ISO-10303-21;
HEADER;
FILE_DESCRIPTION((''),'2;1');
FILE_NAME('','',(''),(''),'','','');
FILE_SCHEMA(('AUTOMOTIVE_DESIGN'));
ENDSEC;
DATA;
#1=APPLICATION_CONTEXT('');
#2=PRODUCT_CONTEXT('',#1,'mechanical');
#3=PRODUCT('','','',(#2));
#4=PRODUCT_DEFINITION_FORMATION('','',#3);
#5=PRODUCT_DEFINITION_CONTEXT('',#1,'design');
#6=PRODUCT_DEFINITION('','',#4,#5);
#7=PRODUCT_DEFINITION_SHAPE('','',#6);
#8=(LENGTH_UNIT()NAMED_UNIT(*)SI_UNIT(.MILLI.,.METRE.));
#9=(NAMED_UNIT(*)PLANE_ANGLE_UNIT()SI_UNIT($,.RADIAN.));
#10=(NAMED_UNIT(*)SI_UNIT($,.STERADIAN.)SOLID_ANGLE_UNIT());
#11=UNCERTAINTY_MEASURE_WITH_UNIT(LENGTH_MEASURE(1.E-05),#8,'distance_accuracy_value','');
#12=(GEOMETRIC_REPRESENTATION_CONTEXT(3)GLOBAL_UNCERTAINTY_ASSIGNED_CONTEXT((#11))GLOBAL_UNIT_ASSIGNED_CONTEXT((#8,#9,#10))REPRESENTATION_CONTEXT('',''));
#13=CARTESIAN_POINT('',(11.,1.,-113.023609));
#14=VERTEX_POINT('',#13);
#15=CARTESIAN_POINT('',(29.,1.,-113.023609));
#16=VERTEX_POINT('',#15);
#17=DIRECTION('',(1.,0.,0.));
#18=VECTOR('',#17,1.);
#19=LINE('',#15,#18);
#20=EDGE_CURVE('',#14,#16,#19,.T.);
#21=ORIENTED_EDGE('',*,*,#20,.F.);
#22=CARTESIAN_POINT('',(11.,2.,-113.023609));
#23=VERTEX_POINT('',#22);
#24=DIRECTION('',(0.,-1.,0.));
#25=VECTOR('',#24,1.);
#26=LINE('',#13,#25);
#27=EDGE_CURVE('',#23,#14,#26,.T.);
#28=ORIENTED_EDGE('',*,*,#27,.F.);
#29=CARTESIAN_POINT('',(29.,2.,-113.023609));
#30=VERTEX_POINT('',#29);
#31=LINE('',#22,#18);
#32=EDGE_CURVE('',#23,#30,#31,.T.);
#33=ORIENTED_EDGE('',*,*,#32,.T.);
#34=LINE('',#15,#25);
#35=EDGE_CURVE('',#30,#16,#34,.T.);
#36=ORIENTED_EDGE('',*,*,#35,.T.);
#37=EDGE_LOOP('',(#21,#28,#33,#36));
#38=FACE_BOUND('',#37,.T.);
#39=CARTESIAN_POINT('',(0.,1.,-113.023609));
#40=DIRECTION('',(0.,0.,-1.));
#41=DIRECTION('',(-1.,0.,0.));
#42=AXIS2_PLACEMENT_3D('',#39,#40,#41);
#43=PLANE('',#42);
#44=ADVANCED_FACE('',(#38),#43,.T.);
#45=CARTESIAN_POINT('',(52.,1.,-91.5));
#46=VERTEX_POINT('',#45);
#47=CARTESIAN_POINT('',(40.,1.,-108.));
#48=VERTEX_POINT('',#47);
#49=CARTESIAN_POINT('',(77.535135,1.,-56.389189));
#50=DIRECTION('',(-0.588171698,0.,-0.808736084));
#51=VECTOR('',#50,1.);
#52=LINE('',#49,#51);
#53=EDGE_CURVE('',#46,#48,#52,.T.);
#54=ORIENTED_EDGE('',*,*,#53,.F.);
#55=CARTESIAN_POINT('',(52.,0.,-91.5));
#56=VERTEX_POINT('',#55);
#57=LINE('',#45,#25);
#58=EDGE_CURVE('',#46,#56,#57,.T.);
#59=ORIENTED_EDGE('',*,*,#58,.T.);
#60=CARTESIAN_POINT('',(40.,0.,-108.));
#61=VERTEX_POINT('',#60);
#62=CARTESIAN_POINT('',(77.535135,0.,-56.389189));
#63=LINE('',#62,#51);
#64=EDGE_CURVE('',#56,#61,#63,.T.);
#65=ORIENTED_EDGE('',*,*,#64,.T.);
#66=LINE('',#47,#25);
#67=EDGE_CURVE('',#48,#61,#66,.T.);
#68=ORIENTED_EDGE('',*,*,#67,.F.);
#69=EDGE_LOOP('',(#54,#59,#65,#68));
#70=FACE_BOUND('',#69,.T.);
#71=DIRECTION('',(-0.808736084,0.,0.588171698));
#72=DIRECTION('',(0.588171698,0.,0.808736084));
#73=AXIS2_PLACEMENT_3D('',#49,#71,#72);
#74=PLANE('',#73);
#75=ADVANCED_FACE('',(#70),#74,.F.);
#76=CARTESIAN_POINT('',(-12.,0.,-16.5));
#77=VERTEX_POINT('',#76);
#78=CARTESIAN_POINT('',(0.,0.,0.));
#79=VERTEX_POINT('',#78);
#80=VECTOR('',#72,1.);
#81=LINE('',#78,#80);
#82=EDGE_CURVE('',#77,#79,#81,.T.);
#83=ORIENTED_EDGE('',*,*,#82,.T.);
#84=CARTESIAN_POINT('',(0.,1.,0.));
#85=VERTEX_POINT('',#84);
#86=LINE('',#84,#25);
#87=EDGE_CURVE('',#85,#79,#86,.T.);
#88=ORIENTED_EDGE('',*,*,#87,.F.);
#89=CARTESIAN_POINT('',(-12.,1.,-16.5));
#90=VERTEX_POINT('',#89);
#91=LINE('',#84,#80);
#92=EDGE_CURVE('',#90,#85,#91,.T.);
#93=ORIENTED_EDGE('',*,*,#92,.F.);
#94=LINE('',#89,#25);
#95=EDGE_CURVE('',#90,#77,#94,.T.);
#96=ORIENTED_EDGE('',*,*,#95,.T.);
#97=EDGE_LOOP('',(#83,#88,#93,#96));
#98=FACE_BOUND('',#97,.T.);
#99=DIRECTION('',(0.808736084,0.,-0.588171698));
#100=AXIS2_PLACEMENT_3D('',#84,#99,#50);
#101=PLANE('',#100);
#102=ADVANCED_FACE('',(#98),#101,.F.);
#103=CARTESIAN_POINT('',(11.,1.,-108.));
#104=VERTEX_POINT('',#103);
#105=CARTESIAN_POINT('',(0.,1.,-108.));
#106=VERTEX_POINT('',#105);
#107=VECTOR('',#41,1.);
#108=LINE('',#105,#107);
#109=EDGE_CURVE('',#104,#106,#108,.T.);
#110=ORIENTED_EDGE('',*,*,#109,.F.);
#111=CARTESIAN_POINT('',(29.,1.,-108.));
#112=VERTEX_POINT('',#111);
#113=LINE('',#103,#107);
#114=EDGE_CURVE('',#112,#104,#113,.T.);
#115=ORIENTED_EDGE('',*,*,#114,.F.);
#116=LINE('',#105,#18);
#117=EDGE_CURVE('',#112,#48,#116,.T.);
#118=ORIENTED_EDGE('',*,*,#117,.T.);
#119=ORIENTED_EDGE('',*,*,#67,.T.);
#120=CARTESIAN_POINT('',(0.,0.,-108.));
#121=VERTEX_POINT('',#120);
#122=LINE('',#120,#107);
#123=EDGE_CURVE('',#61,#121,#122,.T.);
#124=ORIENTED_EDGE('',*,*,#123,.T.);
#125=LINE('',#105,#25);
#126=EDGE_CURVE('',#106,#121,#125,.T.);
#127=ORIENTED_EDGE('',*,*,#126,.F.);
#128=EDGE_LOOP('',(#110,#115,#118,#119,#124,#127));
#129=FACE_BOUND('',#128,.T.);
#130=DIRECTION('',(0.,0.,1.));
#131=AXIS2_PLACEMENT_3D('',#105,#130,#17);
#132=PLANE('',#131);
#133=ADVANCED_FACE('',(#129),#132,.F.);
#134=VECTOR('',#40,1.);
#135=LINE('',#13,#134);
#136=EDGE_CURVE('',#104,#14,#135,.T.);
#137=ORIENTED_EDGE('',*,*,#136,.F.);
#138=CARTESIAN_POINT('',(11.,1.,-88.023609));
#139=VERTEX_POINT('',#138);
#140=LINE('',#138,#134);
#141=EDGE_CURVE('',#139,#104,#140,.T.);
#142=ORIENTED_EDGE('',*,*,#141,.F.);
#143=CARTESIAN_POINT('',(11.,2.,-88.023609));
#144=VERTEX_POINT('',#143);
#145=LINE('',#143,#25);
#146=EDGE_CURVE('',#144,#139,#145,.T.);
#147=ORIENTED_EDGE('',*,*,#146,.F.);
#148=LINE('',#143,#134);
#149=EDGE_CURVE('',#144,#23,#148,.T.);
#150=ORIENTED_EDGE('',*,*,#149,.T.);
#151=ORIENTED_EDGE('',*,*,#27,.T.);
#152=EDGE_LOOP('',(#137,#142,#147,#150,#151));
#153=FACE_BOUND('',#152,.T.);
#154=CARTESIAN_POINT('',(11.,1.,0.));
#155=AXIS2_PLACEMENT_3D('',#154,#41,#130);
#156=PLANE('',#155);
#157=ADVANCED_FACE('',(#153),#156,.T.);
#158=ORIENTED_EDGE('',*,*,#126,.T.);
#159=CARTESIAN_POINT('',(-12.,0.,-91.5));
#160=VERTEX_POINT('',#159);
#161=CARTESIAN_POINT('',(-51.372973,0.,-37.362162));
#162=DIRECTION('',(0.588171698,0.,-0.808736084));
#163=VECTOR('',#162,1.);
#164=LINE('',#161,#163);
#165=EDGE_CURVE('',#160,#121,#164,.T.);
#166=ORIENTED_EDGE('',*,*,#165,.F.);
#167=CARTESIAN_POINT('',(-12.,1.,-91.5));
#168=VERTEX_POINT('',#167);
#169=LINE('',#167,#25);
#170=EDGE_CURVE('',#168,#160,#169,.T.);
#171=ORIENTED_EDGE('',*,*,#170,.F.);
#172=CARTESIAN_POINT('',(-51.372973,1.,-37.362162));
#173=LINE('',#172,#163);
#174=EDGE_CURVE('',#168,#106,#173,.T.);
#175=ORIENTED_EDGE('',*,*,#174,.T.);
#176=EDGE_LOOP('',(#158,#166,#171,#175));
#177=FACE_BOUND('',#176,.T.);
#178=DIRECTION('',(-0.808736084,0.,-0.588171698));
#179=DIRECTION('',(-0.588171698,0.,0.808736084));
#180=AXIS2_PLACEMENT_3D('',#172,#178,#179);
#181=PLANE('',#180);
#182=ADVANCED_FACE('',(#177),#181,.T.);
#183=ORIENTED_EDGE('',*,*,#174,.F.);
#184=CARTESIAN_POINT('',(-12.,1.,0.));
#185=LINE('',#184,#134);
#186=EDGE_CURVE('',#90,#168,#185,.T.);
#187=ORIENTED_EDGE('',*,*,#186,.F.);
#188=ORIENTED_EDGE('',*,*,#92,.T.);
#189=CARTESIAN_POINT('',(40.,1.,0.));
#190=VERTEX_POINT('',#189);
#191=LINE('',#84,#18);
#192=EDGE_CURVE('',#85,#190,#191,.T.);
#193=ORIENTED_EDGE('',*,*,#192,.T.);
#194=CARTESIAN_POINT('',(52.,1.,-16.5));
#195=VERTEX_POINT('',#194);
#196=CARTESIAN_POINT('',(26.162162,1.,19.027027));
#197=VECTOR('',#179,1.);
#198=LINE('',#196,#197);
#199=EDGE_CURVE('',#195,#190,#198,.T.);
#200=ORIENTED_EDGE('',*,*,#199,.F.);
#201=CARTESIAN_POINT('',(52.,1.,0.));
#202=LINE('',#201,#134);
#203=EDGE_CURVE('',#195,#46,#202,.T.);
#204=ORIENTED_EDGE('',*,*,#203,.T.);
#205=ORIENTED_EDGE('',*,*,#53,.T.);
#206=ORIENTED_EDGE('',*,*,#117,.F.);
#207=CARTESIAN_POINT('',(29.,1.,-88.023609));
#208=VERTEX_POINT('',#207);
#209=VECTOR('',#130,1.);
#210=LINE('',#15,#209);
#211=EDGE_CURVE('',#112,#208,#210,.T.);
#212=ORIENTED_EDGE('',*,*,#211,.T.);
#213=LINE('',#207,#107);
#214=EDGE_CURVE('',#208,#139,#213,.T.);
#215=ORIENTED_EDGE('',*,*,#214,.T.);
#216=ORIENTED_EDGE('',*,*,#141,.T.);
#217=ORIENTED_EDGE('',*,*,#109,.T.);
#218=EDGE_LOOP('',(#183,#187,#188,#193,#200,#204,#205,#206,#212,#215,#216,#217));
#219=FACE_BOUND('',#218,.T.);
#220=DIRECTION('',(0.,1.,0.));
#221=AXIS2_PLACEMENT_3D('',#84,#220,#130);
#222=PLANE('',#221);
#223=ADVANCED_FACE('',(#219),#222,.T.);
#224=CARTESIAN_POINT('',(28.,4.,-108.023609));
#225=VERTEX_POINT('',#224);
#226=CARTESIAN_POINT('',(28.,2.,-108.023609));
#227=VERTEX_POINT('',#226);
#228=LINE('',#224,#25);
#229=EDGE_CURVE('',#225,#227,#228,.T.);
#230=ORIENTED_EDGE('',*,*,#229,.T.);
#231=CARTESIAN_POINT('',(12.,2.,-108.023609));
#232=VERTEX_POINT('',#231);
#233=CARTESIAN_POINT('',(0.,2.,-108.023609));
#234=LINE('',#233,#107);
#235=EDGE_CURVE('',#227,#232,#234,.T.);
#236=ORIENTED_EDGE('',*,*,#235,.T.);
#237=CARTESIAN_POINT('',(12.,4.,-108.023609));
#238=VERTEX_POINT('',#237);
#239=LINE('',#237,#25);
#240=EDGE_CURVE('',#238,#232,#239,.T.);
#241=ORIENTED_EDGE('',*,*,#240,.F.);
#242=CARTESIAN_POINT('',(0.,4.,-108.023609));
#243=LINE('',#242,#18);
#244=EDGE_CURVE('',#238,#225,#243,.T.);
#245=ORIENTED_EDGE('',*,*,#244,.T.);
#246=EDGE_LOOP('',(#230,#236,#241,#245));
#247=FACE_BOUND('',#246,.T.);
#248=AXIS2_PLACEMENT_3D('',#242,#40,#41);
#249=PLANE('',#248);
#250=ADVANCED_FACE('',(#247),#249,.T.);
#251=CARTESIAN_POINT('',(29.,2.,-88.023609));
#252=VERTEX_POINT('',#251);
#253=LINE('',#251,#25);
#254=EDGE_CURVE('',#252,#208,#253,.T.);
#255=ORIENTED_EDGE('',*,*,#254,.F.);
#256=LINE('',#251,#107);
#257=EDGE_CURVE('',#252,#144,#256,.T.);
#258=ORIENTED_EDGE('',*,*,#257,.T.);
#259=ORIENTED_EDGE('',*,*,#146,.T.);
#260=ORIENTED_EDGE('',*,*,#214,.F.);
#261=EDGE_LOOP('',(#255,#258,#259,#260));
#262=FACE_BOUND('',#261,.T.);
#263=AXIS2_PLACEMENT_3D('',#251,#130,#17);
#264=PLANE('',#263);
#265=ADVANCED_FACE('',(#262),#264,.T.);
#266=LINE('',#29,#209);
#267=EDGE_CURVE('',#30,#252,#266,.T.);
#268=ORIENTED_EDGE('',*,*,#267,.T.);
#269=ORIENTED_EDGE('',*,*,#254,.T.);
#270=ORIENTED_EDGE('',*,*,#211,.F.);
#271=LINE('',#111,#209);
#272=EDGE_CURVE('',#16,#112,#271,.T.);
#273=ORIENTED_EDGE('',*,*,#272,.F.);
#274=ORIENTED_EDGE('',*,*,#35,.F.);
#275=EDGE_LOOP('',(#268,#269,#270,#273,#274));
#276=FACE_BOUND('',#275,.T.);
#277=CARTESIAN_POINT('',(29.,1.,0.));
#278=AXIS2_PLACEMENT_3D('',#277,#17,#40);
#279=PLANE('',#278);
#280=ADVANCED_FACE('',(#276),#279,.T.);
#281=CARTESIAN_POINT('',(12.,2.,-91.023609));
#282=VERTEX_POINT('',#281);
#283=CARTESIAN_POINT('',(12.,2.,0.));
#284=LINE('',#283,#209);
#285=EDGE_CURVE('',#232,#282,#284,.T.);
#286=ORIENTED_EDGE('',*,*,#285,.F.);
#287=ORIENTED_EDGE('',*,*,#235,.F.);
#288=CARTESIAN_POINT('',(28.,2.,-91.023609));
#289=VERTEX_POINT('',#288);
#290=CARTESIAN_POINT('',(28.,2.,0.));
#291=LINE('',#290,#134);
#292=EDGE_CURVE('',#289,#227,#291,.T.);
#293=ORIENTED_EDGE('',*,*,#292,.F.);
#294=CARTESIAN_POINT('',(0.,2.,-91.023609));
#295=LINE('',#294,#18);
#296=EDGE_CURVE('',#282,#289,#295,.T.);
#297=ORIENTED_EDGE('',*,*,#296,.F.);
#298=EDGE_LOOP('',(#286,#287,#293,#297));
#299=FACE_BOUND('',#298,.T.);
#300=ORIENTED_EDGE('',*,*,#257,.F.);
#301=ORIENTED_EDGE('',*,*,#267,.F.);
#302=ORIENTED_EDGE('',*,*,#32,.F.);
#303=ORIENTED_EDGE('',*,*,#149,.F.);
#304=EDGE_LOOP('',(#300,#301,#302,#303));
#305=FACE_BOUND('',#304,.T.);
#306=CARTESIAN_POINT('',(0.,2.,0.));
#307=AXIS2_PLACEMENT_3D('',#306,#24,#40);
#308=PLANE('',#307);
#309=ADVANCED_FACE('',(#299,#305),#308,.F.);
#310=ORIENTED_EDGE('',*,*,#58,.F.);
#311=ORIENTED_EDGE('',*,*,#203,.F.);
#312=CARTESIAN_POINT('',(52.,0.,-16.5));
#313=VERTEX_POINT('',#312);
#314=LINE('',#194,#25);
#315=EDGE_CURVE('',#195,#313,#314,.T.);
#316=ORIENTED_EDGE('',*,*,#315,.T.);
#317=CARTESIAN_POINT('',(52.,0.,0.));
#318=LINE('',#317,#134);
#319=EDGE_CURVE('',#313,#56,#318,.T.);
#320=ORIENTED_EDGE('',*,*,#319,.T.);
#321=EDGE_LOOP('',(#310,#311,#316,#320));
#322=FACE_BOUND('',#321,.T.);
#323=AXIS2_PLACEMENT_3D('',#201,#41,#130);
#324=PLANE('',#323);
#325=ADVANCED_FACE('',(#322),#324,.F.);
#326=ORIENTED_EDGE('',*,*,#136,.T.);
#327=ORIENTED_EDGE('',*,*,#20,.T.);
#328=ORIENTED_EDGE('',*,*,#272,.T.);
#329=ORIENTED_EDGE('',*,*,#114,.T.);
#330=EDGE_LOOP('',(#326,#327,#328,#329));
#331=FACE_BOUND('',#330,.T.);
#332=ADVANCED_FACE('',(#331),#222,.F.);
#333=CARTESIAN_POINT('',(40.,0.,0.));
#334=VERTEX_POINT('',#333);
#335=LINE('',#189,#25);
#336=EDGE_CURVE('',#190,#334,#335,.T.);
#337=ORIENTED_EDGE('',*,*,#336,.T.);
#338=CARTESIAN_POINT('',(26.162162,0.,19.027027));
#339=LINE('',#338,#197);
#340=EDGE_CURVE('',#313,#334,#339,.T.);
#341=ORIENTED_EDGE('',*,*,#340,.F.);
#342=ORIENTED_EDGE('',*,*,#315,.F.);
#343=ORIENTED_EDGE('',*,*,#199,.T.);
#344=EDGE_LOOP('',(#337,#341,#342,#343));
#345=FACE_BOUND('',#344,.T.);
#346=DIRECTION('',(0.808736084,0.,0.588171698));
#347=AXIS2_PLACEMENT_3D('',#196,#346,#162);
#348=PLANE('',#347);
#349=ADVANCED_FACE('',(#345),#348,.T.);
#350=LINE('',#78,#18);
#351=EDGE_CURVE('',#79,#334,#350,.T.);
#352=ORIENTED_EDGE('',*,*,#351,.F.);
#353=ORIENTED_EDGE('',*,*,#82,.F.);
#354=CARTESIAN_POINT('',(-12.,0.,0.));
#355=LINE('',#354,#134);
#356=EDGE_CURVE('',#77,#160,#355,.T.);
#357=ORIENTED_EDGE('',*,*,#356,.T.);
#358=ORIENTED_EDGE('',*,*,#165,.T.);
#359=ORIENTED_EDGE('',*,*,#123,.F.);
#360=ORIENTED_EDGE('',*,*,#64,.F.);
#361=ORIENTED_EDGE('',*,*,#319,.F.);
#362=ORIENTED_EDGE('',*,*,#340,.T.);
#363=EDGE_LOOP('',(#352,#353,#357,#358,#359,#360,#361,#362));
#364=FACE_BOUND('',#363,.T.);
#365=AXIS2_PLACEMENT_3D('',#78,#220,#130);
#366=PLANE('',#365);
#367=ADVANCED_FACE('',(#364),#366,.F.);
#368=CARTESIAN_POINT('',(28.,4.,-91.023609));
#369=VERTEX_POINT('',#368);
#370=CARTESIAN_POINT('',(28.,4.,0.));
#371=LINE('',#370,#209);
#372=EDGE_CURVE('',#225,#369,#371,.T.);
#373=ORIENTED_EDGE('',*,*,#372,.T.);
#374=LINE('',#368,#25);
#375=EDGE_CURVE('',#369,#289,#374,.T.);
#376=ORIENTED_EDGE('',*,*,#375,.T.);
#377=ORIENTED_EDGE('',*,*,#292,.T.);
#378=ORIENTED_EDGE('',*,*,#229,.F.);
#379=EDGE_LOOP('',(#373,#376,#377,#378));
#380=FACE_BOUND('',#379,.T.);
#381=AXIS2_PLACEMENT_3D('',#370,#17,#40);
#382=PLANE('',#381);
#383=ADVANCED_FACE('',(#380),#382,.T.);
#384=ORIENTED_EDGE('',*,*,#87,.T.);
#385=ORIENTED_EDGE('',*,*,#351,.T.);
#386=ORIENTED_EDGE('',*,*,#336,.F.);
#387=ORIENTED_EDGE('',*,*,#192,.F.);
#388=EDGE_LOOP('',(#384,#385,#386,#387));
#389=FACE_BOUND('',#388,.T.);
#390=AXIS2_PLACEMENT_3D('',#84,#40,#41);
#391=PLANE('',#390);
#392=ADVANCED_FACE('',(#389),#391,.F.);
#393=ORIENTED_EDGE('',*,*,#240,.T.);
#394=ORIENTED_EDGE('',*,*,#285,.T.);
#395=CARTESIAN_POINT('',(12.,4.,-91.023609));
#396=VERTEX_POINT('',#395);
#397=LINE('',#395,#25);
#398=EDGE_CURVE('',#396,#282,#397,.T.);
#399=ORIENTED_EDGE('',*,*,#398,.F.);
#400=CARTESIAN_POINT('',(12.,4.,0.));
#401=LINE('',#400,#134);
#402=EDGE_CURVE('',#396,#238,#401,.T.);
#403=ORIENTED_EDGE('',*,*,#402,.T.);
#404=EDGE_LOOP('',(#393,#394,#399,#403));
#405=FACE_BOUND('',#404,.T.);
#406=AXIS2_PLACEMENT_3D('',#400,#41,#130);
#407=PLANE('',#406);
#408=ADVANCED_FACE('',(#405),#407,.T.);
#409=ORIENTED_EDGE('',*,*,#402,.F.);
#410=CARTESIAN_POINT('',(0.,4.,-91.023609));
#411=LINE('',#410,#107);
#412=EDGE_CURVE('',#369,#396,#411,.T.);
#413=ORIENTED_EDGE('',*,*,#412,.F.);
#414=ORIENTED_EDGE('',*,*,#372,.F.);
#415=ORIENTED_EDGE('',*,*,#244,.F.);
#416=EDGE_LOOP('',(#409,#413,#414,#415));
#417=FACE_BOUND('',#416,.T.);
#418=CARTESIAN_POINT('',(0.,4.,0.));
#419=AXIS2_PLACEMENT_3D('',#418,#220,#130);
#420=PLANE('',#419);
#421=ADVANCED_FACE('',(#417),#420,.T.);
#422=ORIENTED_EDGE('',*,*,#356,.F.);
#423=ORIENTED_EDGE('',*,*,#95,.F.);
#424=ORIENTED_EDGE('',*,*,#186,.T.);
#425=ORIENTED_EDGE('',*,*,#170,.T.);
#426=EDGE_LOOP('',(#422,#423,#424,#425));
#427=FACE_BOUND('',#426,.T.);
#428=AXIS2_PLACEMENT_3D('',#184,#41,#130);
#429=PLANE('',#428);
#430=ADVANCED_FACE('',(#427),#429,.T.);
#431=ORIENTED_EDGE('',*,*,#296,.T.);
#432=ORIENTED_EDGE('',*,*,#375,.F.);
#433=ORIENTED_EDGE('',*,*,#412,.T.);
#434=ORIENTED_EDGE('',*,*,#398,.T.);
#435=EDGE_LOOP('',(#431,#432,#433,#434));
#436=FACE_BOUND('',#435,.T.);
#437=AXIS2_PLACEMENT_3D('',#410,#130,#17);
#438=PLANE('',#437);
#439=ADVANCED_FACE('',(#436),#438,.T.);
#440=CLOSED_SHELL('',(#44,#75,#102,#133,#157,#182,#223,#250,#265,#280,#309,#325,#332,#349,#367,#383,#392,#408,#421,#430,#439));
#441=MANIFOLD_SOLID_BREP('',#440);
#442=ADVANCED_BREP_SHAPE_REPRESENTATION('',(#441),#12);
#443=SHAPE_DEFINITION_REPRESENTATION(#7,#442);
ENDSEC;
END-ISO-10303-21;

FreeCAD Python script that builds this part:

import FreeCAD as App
import Part
import Sketcher

V = App.Vector


def add_polygon(sketch, points):
    """Adds a closed chain of lines whose ends are joined by coincident constraints."""
    first, n = sketch.GeometryCount, len(points)
    for a, b in zip(points, points[1:] + points[:1]):
        sketch.addGeometry(Part.LineSegment(App.Vector(*a, 0), App.Vector(*b, 0)), False)
    for i in range(n):
        sketch.addConstraint(Sketcher.Constraint("Coincident", first + i, 2, first + (i + 1) % n, 1))

doc = App.newDocument("Part")
body = doc.addObject("PartDesign::Body", "Body")

sketch1 = body.newObject("Sketcher::SketchObject", "Sketch")
sketch1.AttachmentSupport = (doc.getObject("XZ_Plane"), [""])
sketch1.MapMode = "FlatFace"
add_polygon(sketch1, [(52, -92), (40, -108), (29, -108), (29, -113), (11, -113), (11, -108), (0, -108), (-12, -92), (-12, -16), (0, 0), (40, 0), (52, -16)])
sketch1.addConstraint([
    Sketcher.Constraint("Horizontal", 1),
    Sketcher.Constraint("Vertical", 2),
    Sketcher.Constraint("Horizontal", 3),
    Sketcher.Constraint("Vertical", 4),
    Sketcher.Constraint("Horizontal", 5),
    Sketcher.Constraint("Vertical", 7),
    Sketcher.Constraint("Horizontal", 9),
    Sketcher.Constraint("Vertical", 11),
    Sketcher.Constraint("Coincident", 8, 2, -1, 1),
    Sketcher.Constraint("PointOnObject", 5, 2, -2),
    Sketcher.Constraint("Parallel", 0, 8),
    Sketcher.Constraint("Parallel", 6, 10),
    Sketcher.Constraint("Horizontal", 1, 2, 4, 2),
    Sketcher.Constraint("Horizontal", 7, 2, 10, 2),
    Sketcher.Constraint("Horizontal", 6, 2, 11, 2),
    Sketcher.Constraint("Vertical", 0, 2, 9, 2),
    Sketcher.Constraint("Equal", 1, 5),
    Sketcher.Constraint("DistanceX", 1, 2, 1, 1, 11.0),
    Sketcher.Constraint("DistanceX", 3, 2, 3, 1, 18.0),
    Sketcher.Constraint("DistanceY", 7, 1, 7, 2, 75.0),
    Sketcher.Constraint("DistanceY", 0, 2, -1, 1, 108.0),
    Sketcher.Constraint("DistanceX", 6, 2, -1, 1, 12.0),
    Sketcher.Constraint("DistanceY", 2, 2, 2, 1, 5.023609),
])
pad1 = body.newObject("PartDesign::Pad", "Pad")
pad1.Profile = sketch1
pad1.Length = 1
pad1.Reversed = True

sketch2 = body.newObject("Sketcher::SketchObject", "Sketch001")
sketch2.AttachmentSupport = (doc.getObject("XZ_Plane"), [""])
sketch2.MapMode = "FlatFace"
sketch2.AttachmentOffset = App.Placement(V(0, 0, -1), App.Rotation())
add_polygon(sketch2, [(12, -108), (12, -91), (28, -91), (28, -108)])
sketch2.addConstraint([
    Sketcher.Constraint("Vertical", 0),
    Sketcher.Constraint("Horizontal", 1),
    Sketcher.Constraint("Vertical", 2),
    Sketcher.Constraint("Horizontal", 3),
    Sketcher.Constraint("DistanceX", 1, 1, 1, 2, 16.0),
    Sketcher.Constraint("DistanceY", 0, 1, 0, 2, 17.0),
    Sketcher.Constraint("DistanceX", -1, 1, 0, 2, 12.0),
    Sketcher.Constraint("DistanceY", 0, 2, -1, 1, 91.023609),
])
pad2 = body.newObject("PartDesign::Pad", "Pad001")
pad2.Profile = sketch2
pad2.Length = 3
pad2.Reversed = True

sketch3 = body.newObject("Sketcher::SketchObject", "Sketch002")
sketch3.AttachmentSupport = (doc.getObject("XZ_Plane"), [""])
sketch3.MapMode = "FlatFace"
sketch3.AttachmentOffset = App.Placement(V(0, 0, -1), App.Rotation())
add_polygon(sketch3, [(11, -113), (11, -88), (29, -88), (29, -113)])
sketch3.addConstraint([
    Sketcher.Constraint("Vertical", 0),
    Sketcher.Constraint("Horizontal", 1),
    Sketcher.Constraint("Vertical", 2),
    Sketcher.Constraint("Horizontal", 3),
    Sketcher.Constraint("DistanceX", 1, 1, 1, 2, 18.0),
    Sketcher.Constraint("DistanceY", 0, 1, 0, 2, 25.0),
    Sketcher.Constraint("DistanceX", -1, 1, 0, 2, 11.0),
    Sketcher.Constraint("DistanceY", 0, 2, -1, 1, 88.023609),
])
pad3 = body.newObject("PartDesign::Pad", "Pad002")
pad3.Profile = sketch3
pad3.Length = 1
pad3.Reversed = True

sketch4 = body.newObject("Sketcher::SketchObject", "Sketch003")
sketch4.AttachmentSupport = (doc.getObject("XZ_Plane"), [""])
sketch4.MapMode = "FlatFace"
add_polygon(sketch4, [(11, -108), (11, -113), (29, -113), (29, -108)])
sketch4.addConstraint([
    Sketcher.Constraint("Vertical", 0),
    Sketcher.Constraint("Horizontal", 1),
    Sketcher.Constraint("Vertical", 2),
    Sketcher.Constraint("Horizontal", 3),
    Sketcher.Constraint("DistanceX", 1, 1, 1, 2, 18.0),
    Sketcher.Constraint("DistanceX", -1, 1, 0, 2, 11.0),
    Sketcher.Constraint("DistanceY", 2, 2, -1, 1, 108.0),
    Sketcher.Constraint("DistanceY", 0, 2, 0, 1, 5.023609),
])
pocket1 = body.newObject("PartDesign::Pocket", "Pocket")
pocket1.Profile = sketch4
pocket1.Length = 1

doc.recompute()
